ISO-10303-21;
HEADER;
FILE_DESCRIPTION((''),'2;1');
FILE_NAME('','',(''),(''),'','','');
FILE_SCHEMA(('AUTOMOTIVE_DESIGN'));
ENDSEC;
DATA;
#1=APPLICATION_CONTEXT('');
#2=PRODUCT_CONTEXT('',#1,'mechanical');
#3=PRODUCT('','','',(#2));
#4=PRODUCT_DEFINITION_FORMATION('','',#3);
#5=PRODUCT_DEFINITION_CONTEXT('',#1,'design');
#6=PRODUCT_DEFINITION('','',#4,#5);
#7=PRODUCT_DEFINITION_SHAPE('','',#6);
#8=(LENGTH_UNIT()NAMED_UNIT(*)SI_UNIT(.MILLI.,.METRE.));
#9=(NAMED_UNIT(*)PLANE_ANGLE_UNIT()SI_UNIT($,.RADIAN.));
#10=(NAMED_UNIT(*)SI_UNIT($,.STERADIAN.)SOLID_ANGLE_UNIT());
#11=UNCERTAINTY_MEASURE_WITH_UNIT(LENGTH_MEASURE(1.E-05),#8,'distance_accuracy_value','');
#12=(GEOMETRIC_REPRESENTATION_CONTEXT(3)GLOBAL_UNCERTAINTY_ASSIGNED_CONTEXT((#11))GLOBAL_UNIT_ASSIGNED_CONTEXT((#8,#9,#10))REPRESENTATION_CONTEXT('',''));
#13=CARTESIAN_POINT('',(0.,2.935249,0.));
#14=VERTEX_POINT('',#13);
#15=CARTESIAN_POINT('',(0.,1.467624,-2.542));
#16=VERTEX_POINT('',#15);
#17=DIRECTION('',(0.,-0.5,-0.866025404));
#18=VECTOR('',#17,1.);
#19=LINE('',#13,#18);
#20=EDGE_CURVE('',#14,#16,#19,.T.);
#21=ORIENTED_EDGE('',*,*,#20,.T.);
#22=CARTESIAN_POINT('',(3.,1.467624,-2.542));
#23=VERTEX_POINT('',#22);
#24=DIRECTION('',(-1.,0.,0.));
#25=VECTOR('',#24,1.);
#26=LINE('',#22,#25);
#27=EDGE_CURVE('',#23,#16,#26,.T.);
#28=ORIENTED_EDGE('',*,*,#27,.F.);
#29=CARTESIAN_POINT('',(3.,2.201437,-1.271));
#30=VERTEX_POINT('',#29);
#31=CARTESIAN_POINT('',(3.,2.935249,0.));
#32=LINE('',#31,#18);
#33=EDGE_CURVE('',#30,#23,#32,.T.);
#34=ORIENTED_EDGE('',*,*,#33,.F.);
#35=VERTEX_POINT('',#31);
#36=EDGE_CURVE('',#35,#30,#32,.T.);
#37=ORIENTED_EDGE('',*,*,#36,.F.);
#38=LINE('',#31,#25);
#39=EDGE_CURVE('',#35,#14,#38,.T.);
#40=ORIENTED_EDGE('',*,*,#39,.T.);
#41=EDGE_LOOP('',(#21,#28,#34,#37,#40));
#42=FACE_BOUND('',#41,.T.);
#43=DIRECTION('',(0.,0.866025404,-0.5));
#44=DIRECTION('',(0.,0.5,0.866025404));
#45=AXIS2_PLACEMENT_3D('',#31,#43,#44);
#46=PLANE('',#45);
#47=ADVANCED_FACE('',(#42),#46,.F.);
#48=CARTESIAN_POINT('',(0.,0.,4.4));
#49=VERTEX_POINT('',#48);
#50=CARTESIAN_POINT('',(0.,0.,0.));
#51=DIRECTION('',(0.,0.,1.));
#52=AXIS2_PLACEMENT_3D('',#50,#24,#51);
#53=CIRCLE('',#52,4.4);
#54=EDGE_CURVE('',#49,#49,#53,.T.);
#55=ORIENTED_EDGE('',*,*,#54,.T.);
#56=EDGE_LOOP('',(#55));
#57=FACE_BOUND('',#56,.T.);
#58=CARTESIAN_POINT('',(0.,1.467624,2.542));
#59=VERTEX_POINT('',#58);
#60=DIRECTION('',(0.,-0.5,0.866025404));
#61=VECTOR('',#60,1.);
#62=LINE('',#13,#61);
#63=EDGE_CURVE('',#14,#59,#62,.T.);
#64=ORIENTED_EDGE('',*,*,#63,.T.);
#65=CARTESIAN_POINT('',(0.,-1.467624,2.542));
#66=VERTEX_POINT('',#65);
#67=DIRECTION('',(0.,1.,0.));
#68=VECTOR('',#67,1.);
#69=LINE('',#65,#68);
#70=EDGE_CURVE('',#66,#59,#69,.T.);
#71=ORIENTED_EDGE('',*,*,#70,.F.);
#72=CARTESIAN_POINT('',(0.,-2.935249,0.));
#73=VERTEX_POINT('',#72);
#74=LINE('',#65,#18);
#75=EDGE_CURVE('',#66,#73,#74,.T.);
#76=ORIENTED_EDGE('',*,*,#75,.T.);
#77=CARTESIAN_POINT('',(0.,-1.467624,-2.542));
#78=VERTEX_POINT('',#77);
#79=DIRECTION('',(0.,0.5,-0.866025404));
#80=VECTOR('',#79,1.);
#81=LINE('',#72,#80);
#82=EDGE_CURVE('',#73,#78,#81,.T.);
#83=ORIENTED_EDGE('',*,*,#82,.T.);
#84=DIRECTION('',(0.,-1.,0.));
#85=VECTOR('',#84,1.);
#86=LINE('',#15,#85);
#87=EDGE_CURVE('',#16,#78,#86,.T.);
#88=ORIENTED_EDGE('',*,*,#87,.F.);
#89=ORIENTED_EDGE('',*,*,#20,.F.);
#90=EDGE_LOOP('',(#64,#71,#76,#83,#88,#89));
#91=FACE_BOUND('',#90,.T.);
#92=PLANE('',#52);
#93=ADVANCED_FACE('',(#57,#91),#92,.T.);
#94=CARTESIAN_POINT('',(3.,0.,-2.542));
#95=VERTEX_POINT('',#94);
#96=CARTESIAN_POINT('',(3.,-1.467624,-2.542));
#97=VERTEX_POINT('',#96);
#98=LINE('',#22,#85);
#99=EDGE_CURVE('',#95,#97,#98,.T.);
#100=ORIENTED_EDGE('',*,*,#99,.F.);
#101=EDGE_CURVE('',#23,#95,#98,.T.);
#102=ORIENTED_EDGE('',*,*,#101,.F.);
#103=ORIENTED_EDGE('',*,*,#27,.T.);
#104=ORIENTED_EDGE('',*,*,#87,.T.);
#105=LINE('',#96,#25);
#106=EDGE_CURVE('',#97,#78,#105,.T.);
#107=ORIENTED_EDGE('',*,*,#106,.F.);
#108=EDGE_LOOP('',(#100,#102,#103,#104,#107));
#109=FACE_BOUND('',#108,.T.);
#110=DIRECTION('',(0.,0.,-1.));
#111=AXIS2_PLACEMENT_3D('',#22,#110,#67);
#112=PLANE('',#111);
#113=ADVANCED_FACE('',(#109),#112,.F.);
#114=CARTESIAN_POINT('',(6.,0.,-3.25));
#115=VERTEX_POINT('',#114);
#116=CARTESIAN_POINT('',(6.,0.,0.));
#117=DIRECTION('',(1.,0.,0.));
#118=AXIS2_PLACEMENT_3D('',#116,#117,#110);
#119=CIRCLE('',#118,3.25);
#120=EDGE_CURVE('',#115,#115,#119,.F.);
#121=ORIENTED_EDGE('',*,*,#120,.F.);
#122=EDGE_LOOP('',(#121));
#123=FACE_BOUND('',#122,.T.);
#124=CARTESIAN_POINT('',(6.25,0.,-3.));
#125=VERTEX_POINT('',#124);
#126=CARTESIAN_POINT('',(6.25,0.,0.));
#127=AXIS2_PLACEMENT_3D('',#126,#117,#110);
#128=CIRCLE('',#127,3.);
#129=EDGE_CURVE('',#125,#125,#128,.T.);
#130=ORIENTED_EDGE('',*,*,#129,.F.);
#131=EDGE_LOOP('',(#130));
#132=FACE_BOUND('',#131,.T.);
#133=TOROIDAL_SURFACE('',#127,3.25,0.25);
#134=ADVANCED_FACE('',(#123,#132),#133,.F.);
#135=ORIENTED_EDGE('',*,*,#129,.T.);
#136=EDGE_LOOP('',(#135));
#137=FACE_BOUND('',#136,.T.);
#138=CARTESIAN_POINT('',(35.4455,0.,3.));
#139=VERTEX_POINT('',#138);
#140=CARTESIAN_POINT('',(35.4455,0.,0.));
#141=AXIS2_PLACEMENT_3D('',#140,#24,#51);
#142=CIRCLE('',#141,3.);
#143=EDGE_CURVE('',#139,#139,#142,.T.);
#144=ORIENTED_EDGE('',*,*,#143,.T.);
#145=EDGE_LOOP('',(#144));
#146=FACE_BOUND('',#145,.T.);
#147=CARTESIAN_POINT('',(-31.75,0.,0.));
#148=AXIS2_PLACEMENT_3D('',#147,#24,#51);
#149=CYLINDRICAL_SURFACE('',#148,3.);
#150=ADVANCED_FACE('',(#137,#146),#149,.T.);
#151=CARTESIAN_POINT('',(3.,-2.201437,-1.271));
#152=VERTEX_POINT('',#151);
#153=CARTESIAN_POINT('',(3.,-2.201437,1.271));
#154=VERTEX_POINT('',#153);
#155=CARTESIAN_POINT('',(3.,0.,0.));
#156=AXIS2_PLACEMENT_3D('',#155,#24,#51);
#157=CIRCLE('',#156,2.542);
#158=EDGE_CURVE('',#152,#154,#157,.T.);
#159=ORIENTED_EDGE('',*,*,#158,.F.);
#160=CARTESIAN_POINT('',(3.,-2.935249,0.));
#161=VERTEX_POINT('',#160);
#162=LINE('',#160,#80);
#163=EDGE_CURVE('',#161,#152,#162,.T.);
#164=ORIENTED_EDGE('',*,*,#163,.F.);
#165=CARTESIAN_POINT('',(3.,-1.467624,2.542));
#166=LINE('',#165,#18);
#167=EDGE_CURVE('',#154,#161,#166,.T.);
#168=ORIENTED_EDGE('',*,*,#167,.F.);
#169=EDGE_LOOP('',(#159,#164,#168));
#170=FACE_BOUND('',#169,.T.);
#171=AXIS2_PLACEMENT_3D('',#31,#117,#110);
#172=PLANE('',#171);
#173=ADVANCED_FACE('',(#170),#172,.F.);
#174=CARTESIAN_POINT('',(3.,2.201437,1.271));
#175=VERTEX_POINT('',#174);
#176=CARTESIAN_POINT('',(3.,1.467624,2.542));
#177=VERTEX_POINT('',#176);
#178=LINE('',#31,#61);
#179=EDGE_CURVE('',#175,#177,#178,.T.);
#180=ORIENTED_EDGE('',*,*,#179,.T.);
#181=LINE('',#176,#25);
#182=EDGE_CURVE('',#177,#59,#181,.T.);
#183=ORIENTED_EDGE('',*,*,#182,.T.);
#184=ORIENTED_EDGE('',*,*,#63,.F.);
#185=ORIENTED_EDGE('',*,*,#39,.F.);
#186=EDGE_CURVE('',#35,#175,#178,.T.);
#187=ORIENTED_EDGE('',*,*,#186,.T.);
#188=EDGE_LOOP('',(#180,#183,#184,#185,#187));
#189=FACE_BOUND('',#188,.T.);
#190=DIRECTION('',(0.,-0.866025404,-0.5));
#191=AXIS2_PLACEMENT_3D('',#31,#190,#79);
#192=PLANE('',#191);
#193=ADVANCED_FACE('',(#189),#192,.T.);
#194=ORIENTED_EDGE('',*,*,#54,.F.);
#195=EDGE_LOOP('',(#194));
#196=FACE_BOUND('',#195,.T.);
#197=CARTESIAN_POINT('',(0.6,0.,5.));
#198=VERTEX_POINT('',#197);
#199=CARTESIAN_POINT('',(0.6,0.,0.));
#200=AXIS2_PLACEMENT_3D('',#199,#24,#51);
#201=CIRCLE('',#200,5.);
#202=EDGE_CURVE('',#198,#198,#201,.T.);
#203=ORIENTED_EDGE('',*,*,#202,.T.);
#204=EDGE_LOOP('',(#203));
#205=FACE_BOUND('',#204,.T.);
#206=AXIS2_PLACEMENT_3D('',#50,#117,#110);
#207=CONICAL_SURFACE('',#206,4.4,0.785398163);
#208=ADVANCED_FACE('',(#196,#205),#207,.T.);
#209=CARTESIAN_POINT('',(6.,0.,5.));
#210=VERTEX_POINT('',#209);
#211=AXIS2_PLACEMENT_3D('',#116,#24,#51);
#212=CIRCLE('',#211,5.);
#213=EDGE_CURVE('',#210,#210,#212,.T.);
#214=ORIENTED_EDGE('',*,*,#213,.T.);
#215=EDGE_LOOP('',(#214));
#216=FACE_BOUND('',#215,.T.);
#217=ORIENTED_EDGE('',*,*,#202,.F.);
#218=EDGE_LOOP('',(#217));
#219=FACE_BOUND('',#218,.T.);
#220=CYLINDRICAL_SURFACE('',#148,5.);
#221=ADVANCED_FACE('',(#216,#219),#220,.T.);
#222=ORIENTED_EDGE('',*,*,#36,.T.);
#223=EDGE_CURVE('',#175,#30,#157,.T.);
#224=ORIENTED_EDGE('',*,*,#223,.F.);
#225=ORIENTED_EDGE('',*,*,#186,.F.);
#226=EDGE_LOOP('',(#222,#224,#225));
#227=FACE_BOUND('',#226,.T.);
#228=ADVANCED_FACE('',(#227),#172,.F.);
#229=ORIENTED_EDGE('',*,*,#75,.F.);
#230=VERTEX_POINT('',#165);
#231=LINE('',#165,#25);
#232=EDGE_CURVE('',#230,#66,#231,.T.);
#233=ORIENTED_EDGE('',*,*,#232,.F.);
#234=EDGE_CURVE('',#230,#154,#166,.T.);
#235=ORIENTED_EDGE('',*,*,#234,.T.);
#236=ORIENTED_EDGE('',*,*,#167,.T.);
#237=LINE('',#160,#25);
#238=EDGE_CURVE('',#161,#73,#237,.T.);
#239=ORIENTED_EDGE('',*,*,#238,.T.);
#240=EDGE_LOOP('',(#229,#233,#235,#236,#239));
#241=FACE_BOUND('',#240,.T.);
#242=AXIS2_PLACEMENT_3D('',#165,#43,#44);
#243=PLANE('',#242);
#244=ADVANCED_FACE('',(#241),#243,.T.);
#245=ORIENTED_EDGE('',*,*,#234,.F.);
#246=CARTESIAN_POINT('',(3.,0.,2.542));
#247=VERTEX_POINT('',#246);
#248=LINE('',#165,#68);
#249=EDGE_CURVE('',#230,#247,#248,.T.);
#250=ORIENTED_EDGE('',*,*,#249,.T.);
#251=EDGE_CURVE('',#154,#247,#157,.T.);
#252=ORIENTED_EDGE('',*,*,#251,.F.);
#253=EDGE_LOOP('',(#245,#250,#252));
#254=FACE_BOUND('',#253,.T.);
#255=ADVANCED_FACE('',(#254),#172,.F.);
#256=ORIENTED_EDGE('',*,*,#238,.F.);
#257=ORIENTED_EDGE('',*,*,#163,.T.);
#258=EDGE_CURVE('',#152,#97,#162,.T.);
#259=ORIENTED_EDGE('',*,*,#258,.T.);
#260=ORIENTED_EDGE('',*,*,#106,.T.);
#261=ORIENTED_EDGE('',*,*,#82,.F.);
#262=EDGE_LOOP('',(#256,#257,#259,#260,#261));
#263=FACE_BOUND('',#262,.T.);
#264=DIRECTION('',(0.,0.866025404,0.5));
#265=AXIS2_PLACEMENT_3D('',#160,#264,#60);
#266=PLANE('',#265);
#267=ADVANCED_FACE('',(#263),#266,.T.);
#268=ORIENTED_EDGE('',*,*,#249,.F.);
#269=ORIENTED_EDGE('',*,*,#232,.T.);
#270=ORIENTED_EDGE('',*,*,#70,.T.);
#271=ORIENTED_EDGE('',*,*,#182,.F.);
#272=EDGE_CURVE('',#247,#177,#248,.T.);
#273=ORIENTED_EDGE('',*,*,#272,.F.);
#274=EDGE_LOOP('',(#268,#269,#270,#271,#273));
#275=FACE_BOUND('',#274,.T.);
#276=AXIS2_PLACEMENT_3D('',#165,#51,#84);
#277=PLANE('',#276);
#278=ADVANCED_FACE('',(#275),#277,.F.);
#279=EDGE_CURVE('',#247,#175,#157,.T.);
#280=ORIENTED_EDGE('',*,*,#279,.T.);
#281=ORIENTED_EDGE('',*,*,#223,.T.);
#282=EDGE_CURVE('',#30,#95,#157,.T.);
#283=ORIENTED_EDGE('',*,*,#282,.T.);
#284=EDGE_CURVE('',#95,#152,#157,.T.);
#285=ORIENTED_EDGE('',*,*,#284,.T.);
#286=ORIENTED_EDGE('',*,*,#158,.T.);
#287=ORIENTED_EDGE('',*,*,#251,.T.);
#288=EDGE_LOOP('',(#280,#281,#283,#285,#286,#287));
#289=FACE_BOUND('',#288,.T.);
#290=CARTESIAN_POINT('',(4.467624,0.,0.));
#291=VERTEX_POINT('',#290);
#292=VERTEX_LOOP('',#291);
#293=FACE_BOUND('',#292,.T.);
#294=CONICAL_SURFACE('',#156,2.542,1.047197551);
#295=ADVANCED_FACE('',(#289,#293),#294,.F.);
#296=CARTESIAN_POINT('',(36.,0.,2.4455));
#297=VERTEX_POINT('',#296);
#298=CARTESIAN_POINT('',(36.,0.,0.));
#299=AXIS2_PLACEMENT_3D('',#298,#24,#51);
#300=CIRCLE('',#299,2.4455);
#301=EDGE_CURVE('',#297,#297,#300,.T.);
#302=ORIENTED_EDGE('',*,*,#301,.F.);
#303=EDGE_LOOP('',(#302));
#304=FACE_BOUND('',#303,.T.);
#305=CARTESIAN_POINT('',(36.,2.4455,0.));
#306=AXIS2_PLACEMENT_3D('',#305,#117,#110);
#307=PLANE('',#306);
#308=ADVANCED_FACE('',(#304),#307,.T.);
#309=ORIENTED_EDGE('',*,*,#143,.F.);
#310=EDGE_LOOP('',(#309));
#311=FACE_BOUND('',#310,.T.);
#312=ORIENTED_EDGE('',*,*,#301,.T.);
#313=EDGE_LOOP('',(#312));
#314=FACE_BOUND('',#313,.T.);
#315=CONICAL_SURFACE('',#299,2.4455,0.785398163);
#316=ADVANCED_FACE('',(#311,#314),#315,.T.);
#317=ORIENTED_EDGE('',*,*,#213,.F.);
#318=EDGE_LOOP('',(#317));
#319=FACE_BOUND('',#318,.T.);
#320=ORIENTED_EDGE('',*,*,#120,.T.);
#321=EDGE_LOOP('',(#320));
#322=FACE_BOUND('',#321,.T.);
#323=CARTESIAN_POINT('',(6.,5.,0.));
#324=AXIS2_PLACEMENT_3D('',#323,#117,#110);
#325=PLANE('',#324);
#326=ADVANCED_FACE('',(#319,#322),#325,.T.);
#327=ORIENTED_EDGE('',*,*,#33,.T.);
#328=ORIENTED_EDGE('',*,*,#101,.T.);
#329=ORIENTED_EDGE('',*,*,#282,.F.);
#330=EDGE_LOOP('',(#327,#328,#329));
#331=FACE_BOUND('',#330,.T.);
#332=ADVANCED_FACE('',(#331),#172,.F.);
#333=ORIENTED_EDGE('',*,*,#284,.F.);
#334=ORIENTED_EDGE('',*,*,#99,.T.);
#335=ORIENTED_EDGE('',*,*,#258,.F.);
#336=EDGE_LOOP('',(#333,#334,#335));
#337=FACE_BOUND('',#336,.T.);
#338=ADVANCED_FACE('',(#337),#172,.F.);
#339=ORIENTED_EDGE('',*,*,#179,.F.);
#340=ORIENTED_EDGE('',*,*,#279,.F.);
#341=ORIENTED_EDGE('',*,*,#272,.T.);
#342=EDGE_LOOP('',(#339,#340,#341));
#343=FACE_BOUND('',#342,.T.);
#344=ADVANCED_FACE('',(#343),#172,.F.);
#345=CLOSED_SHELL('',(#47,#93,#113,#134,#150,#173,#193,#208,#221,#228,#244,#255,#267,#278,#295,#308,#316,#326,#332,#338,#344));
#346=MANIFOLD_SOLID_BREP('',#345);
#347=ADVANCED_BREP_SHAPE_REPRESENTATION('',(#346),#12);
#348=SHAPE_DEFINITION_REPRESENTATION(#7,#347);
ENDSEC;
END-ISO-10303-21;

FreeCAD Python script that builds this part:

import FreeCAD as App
import Part
import Sketcher
from FreeCAD import Vector
Q = App.Units.Quantity


def edges_at(feature, points):
    """Names of the edges that pass closest to the given points."""
    edges = feature.Shape.Edges
    near = lambda p: min(range(len(edges)), key=lambda i: edges[i].distToShape(Part.Vertex(*p))[0])
    return sorted({f"Edge{near(p) + 1}" for p in points})


def add_polygon(sketch, points):
    """Adds a closed chain of lines whose ends are joined by coincident constraints."""
    first, n = sketch.GeometryCount, len(points)
    for a, b in zip(points, points[1:] + points[:1]):
        sketch.addGeometry(Part.LineSegment(App.Vector(*a, 0), App.Vector(*b, 0)), False)
    for i in range(n):
        sketch.addConstraint(Sketcher.Constraint("Coincident", first + i, 2, first + (i + 1) % n, 1))

doc = App.newDocument("Part")
body = doc.addObject("PartDesign::Body", "Body")

sketch1 = doc.addObject("Sketcher::SketchObject", "Sketch")
body.addObject(sketch1)
sketch1.AttachmentSupport = (doc.XY_Plane, [""])
sketch1.MapMode = "FlatFace"
add_polygon(sketch1, [(0, 4.4), (0, 0), (36, 0), (36, 2.4), (35.4, 3), (6, 3), (6, 5), (0.6, 5)])
sketch1.addConstraint([
    Sketcher.Constraint("Vertical", 0),
    Sketcher.Constraint("Horizontal", 1),
    Sketcher.Constraint("Vertical", 2),
    Sketcher.Constraint("Horizontal", 4),
    Sketcher.Constraint("Vertical", 5),
    Sketcher.Constraint("Horizontal", 6),
    Sketcher.Constraint("Coincident", 0, 2, -1, 1),
    Sketcher.Constraint("Perpendicular", 3, 7),
    Sketcher.Constraint("DistanceX", 1, 1, 1, 2, 36.0),
    Sketcher.Constraint("DistanceY", 5, 1, 5, 2, 2.0),
    Sketcher.Constraint("Angle", 3, Q("135 deg")),
    Sketcher.Constraint("DistanceX", 6, 2, 6, 1, 5.4),
    Sketcher.Constraint("DistanceY", 0, 2, 0, 1, 4.4),
    Sketcher.Constraint("DistanceY", -1, 1, 3, 2, 3.0),
    Sketcher.Constraint("DistanceX", 4, 2, 4, 1, 29.4455),
])
revolution = doc.addObject("PartDesign::Revolution", "Revolution")
body.addObject(revolution)
revolution.Profile = sketch1
revolution.ReferenceAxis = (sketch1, ["H_Axis"])
revolution.Angle = 360
doc.recompute()

fillet = doc.addObject("PartDesign::Fillet", "Fillet")
body.addObject(fillet)
fillet.Base = (revolution, edges_at(revolution, [(6, -3, 0)]))
fillet.Radius = 0.25

sketch2 = doc.addObject("Sketcher::SketchObject", "Sketch001")
body.addObject(sketch2)
sketch2.AttachmentSupport = (doc.XY_Plane, [""])
sketch2.MapMode = "FlatFace"
add_polygon(sketch2, [(3, 2.5), (0, 2.5), (0, 0), (4.5, 0)])
sketch2.addConstraint([
    Sketcher.Constraint("Horizontal", 0),
    Sketcher.Constraint("Vertical", 1),
    Sketcher.Constraint("Horizontal", 2),
    Sketcher.Constraint("Coincident", 1, 2, -1, 1),
    Sketcher.Constraint("DistanceX", 0, 2, 0, 1, 3.0),
    Sketcher.Constraint("Angle", 3, Q("120 deg")),
    Sketcher.Constraint("DistanceY", 1, 2, 1, 1, 2.542),
])
groove = doc.addObject("PartDesign::Groove", "Groove")
body.addObject(groove)
groove.Profile = sketch2
groove.ReferenceAxis = (sketch2, ["H_Axis"])
groove.Angle = 360

sketch3 = doc.addObject("Sketcher::SketchObject", "Sketch002")
body.addObject(sketch3)
sketch3.AttachmentSupport = (doc.YZ_Plane, [""])
sketch3.MapMode = "FlatFace"
add_polygon(sketch3, [(2.9, 0), (1.5, -2.5), (-1.5, -2.5), (-2.9, 0), (-1.5, 2.5), (1.5, 2.5)])
sketch3.addConstraint([
    Sketcher.Constraint("Horizontal", 1),
    Sketcher.Constraint("Horizontal", 4),
    Sketcher.Constraint("Symmetric", 0, 2, 3, 2, -1, 1),
    Sketcher.Constraint("Symmetric", 2, 2, 5, 2, -1, 1),
    Sketcher.Constraint("PointOnObject", 2, 2, -1),
    Sketcher.Constraint("Parallel", 2, 5),
    Sketcher.Constraint("Vertical", 1, 2, 3, 2),
    Sketcher.Constraint("Angle", 0, Q("-120 deg")),
    Sketcher.Constraint("DistanceY", 0, 2, -1, 1, 2.542),
    Sketcher.Constraint("DistanceX", 1, 2, 1, 1, 2.935249),
])
pocket1 = doc.addObject("PartDesign::Pocket", "Pocket")
body.addObject(pocket1)
pocket1.Profile = sketch3
pocket1.Length = 3
pocket1.Reversed = True

doc.recompute()
